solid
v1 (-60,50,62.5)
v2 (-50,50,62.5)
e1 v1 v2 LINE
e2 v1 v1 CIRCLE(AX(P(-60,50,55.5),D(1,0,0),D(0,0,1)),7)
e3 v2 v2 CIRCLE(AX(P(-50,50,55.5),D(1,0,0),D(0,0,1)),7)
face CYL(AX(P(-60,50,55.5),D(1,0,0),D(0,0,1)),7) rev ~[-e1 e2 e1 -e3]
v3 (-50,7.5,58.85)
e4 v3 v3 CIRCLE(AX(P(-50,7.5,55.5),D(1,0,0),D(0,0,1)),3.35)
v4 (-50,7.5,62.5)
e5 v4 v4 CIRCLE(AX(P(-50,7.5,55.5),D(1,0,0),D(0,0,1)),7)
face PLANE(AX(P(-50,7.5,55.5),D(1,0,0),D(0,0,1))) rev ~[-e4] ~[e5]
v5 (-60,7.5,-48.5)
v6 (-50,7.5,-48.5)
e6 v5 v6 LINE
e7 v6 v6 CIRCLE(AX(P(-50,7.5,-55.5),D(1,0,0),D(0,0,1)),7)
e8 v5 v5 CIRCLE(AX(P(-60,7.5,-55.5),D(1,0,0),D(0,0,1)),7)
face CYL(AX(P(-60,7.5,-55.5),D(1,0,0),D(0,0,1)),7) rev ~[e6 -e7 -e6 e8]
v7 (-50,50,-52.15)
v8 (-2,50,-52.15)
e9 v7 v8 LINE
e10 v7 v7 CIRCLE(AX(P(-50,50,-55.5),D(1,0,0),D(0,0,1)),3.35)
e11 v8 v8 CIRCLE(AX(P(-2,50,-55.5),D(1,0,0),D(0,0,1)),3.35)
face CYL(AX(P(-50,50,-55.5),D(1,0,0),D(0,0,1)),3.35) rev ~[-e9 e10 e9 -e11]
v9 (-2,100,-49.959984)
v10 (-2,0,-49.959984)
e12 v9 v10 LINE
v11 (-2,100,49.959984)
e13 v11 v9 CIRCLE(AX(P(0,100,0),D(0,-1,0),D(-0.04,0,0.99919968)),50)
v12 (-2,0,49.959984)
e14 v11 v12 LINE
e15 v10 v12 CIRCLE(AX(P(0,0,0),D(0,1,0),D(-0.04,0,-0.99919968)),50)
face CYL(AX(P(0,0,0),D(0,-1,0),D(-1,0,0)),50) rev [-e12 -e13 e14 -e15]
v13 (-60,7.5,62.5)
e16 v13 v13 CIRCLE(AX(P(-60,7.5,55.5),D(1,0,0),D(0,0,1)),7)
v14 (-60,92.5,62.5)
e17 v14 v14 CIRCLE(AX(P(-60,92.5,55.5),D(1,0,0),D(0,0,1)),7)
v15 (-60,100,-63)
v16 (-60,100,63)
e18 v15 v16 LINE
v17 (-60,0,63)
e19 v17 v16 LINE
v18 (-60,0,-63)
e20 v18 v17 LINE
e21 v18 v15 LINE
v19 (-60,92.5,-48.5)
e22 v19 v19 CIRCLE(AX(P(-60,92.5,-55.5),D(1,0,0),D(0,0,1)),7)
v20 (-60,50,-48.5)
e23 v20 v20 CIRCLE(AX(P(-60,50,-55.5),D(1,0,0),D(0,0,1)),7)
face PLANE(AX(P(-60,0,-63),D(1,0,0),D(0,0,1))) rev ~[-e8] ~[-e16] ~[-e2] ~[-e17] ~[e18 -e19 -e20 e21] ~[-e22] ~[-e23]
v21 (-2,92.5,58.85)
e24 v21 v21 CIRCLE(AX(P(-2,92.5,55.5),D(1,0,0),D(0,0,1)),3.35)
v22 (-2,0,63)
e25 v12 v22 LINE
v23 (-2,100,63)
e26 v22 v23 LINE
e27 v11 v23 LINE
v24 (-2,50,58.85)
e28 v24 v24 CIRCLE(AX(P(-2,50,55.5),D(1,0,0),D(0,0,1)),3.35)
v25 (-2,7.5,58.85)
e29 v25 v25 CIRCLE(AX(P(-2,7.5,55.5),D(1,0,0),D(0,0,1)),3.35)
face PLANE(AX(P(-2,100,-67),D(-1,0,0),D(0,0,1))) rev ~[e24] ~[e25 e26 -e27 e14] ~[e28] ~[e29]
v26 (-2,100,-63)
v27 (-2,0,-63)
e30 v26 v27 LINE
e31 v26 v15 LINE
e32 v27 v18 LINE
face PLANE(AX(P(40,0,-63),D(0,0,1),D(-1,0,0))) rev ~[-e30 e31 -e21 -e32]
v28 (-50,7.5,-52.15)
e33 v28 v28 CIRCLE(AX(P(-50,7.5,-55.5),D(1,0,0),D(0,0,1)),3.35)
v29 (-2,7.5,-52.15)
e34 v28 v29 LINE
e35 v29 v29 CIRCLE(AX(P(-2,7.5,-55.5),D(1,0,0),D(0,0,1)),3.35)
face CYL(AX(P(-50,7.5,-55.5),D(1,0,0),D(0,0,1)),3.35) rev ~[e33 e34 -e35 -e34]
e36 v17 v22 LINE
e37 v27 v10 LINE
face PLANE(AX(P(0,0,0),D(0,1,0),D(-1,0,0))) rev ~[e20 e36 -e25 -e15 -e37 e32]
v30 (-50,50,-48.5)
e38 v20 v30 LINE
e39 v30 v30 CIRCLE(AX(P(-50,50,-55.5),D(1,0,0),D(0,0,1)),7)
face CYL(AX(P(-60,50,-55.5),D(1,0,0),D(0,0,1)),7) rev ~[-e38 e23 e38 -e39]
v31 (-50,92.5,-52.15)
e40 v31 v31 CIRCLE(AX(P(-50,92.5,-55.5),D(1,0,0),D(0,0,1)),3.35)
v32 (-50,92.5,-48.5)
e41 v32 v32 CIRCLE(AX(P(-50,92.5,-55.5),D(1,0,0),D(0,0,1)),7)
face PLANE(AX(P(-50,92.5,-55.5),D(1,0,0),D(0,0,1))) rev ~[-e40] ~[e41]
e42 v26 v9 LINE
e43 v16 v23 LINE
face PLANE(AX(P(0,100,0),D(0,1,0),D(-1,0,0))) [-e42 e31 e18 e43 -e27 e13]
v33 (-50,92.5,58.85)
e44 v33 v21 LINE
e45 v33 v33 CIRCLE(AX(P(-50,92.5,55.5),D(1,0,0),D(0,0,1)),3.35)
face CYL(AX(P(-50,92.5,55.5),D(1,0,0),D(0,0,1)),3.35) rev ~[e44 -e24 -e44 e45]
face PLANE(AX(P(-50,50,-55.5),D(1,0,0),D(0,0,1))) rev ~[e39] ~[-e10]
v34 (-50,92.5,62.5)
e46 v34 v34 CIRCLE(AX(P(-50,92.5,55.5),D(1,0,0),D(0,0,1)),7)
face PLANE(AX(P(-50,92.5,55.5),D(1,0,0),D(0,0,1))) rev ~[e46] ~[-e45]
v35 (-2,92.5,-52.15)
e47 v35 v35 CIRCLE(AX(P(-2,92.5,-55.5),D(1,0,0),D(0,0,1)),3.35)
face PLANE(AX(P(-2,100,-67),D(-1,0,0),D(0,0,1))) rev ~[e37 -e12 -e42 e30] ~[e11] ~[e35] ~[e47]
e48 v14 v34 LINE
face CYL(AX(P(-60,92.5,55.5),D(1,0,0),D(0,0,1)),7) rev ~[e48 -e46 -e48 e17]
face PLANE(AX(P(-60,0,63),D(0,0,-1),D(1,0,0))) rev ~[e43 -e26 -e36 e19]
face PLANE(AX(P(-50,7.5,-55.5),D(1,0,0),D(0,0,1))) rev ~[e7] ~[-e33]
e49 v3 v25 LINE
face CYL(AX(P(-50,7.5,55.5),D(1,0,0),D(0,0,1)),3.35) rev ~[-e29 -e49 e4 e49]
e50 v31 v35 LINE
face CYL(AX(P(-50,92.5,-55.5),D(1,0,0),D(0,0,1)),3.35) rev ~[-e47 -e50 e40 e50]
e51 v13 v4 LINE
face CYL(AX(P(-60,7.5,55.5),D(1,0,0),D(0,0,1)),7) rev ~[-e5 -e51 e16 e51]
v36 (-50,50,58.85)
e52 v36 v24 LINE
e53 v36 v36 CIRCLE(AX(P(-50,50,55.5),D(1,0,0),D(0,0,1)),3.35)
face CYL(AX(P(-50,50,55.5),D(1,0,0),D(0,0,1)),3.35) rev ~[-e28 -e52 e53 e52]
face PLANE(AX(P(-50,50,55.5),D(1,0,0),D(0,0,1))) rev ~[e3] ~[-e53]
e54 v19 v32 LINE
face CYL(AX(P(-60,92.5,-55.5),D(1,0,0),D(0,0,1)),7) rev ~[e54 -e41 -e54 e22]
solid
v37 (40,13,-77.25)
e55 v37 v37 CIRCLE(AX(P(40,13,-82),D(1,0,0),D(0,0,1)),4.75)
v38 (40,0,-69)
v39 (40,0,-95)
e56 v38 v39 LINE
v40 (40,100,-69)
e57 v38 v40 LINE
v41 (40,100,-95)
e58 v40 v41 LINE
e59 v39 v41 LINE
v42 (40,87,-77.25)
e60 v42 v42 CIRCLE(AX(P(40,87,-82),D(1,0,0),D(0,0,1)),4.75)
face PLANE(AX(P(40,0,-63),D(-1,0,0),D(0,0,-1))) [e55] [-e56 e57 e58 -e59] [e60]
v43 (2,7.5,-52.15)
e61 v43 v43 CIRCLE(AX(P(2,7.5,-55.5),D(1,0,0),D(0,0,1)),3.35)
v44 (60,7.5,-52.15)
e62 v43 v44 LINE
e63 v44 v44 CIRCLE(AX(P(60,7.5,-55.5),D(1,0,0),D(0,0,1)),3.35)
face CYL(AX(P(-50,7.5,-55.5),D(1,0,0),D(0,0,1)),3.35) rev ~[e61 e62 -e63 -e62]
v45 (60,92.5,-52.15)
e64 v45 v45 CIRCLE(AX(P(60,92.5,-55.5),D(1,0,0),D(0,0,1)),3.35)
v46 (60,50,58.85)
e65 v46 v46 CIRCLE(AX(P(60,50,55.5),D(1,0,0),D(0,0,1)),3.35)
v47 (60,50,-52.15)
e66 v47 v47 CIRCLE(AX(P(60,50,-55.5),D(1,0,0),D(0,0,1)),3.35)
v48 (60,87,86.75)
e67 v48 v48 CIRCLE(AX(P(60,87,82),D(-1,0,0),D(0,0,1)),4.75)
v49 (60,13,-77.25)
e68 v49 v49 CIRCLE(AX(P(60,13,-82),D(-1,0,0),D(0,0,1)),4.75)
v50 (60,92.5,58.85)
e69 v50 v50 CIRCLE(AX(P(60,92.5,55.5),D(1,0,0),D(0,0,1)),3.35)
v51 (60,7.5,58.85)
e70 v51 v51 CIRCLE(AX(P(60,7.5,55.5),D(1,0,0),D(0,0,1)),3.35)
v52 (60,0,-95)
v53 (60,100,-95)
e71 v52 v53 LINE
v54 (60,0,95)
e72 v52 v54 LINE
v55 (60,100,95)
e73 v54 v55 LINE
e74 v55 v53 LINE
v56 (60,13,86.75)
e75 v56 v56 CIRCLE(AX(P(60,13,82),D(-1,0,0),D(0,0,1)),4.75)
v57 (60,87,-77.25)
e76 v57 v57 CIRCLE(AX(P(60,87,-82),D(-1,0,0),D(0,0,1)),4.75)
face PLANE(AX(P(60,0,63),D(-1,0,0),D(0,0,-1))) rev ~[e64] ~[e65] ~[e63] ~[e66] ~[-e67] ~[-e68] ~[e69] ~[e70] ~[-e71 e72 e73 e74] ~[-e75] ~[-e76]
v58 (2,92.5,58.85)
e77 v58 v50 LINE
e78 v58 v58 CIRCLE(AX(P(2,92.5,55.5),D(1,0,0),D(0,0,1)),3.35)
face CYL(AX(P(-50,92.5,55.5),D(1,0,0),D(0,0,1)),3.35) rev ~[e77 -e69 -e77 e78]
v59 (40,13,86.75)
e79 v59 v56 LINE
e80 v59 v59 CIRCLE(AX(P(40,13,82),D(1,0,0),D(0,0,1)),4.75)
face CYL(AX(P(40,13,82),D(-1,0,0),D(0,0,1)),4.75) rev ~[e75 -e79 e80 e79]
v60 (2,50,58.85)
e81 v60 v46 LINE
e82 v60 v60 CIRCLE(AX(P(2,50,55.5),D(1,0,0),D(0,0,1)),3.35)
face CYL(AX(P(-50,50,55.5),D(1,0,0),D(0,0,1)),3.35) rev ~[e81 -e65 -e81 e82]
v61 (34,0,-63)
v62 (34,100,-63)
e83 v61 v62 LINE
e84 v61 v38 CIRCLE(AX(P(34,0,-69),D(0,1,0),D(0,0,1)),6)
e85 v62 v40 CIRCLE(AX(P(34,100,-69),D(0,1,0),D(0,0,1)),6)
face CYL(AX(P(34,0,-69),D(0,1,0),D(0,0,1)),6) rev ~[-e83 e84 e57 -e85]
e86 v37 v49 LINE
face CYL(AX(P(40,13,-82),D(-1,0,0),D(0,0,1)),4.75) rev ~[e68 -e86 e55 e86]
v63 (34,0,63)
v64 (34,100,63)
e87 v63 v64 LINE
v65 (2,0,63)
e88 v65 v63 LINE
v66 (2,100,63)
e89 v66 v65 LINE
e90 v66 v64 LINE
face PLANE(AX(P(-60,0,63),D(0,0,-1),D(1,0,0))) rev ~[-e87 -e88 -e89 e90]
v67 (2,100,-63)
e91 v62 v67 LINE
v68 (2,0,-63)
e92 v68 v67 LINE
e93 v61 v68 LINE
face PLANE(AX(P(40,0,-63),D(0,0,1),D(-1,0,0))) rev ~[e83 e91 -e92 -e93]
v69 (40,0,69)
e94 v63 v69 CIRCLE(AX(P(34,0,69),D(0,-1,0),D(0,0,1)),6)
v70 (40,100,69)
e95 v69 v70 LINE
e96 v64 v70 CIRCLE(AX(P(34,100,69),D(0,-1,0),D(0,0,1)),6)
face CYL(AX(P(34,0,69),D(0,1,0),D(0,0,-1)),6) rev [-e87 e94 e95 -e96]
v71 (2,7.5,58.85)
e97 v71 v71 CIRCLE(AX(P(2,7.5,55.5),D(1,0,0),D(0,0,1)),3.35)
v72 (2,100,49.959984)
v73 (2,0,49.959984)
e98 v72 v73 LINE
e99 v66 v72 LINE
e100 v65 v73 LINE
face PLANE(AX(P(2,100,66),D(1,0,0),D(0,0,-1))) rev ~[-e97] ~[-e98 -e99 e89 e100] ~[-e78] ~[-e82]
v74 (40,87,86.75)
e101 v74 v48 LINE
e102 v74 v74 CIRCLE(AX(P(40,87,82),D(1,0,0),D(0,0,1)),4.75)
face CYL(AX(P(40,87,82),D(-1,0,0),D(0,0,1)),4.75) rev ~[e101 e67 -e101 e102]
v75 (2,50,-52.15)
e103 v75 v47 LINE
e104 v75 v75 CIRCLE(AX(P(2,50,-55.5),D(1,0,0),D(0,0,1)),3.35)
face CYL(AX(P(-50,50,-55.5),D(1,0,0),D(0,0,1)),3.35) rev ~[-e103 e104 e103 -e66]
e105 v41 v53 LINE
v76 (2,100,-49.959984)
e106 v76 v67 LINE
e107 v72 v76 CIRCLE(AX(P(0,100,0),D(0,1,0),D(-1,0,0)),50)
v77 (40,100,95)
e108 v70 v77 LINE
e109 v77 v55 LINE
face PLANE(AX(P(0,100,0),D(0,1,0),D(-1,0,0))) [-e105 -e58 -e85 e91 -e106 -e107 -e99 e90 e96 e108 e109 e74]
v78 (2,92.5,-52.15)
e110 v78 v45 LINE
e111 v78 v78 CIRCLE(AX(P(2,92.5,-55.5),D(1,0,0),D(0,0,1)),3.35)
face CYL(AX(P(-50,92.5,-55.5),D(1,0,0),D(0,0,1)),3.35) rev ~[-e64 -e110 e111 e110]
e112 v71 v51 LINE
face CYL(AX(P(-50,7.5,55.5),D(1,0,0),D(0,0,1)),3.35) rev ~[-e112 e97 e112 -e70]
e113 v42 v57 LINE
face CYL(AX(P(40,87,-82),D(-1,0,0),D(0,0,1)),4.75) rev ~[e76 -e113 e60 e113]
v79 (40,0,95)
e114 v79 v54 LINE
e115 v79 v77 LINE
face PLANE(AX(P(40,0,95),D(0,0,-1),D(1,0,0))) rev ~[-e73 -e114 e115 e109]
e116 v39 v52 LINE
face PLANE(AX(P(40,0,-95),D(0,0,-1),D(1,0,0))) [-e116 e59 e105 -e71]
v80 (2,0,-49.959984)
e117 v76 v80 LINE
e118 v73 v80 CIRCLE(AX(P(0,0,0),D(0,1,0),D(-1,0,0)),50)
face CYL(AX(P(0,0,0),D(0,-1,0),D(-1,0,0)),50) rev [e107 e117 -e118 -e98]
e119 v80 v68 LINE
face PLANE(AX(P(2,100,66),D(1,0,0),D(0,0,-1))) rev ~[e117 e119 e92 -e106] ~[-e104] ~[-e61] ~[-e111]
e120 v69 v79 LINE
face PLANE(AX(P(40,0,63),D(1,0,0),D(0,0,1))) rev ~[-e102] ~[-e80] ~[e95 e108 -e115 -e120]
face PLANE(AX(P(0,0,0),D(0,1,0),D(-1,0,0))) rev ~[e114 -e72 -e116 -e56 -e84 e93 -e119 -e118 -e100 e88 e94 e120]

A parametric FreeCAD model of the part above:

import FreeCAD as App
import Part
import Sketcher

V = App.Vector
Q = App.Units.Quantity


def edges_at(feature, points):
    """Names of the edges that pass closest to the given points."""
    edges = feature.Shape.Edges
    near = lambda p: min(range(len(edges)), key=lambda i: edges[i].distToShape(Part.Vertex(*p))[0])
    return sorted({f"Edge{near(p) + 1}" for p in points})


def add_polygon(sketch, points):
    """Adds a closed chain of lines whose ends are joined by coincident constraints."""
    first, n = sketch.GeometryCount, len(points)
    for a, b in zip(points, points[1:] + points[:1]):
        sketch.addGeometry(Part.LineSegment(App.Vector(*a, 0), App.Vector(*b, 0)), False)
    for i in range(n):
        sketch.addConstraint(Sketcher.Constraint("Coincident", first + i, 2, first + (i + 1) % n, 1))

doc = App.newDocument("Part")
body = doc.addObject("PartDesign::Body", "Body")
body.AllowCompound = True

sketch1 = body.newObject("Sketcher::SketchObject", "Sketch")
sketch1.AttachmentSupport = (doc.getObject("XZ_Plane"), [""])
sketch1.MapMode = "FlatFace"
add_polygon(sketch1, [(-60, -63), (-60, 63), (40, 63), (40, 95), (60, 95), (60, -95), (40, -95), (40, -63)])
sketch1.addGeometry(Part.Circle(V(0, 0, 0), V(0, 0, 1), 50), False)
sketch1.addConstraint([
    Sketcher.Constraint("Vertical", 0),
    Sketcher.Constraint("Horizontal", 1),
    Sketcher.Constraint("Vertical", 2),
    Sketcher.Constraint("Horizontal", 3),
    Sketcher.Constraint("Vertical", 4),
    Sketcher.Constraint("Horizontal", 5),
    Sketcher.Constraint("Vertical", 6),
    Sketcher.Constraint("Horizontal", 7),
    Sketcher.Constraint("Coincident", 8, 3, -1, 1),
    Sketcher.Constraint("Symmetric", 2, 2, 5, 2, -1),
    Sketcher.Constraint("Equal", 2, 6),
    Sketcher.Constraint("Diameter", 8, Q("100 mm")),
    Sketcher.Constraint("DistanceX", 1, 1, 1, 2, Q("100 mm")),
    Sketcher.Constraint("DistanceX", 3, 1, 3, 2, Q("20 mm")),
    Sketcher.Constraint("DistanceY", 0, 1, 0, 2, Q("126 mm")),
    Sketcher.Constraint("DistanceY", 2, 1, 2, 2, Q("32 mm")),
    Sketcher.Constraint("DistanceX", 0, 2, -1, 1, Q("60 mm")),
])
pad1 = body.newObject("PartDesign::Pad", "Pad")
pad1.Profile = sketch1
pad1.Length = 100
pad1.Reversed = True
doc.recompute()

fillet = body.newObject("PartDesign::Fillet", "Fillet")
fillet.Base = (pad1, edges_at(pad1, [(40, 50, 63), (40, 50, -63)]))
fillet.Radius = 6

sketch2 = body.newObject("Sketcher::SketchObject", "Sketch001")
sketch2.AttachmentSupport = (doc.getObject("YZ_Plane"), [""])
sketch2.MapMode = "FlatFace"
sketch2.AttachmentOffset = App.Placement(V(0, 0, 40), App.Rotation())
sketch2.addGeometry([
    Part.Circle(V(13, -82, 0), V(0, 0, 1), 4.8),
    Part.Circle(V(87, -82, 0), V(0, 0, 1), 4.8),
    Part.Circle(V(13, 82, 0), V(0, 0, 1), 4.8),
    Part.Circle(V(87, 82, 0), V(0, 0, 1), 4.8),
], False)
sketch2.addConstraint([
    Sketcher.Constraint("Equal", 0, 1),
    Sketcher.Constraint("Equal", 1, 2),
    Sketcher.Constraint("Equal", 2, 3),
    Sketcher.Constraint("Symmetric", 0, 3, 2, 3, -1),
    Sketcher.Constraint("Symmetric", 1, 3, 3, 3, -1),
    Sketcher.Constraint("Horizontal", 0, 3, 1, 3),
    Sketcher.Constraint("DistanceX", -1, 1, 0, 3, Q("13 mm")),
    Sketcher.Constraint("Diameter", 0, Q("9.5 mm")),
    Sketcher.Constraint("DistanceY", 0, 3, -1, 1, Q("82 mm")),
    Sketcher.Constraint("DistanceX", -1, 1, 1, 3, Q("87 mm")),
])
pocket1 = body.newObject("PartDesign::Pocket", "Pocket")
pocket1.Profile = sketch2
pocket1.Length = 25
pocket1.Reversed = True

sketch3 = body.newObject("Sketcher::SketchObject", "Sketch002")
sketch3.AttachmentSupport = (doc.getObject("YZ_Plane"), [""])
sketch3.MapMode = "FlatFace"
sketch3.AttachmentOffset = App.Placement(V(0, 0, -60), App.Rotation())
sketch3.addGeometry([
    Part.Circle(V(7.5, -55.5, 0), V(0, 0, 1), 3.4),
    Part.Circle(V(50, -55.5, 0), V(0, 0, 1), 3.4),
    Part.Circle(V(92.5, -55.5, 0), V(0, 0, 1), 3.4),
    Part.Circle(V(92.5, 55.5, 0), V(0, 0, 1), 3.4),
    Part.Circle(V(50, 55.5, 0), V(0, 0, 1), 3.4),
    Part.Circle(V(7.5, 55.5, 0), V(0, 0, 1), 3.4),
], False)
sketch3.addConstraint([
    Sketcher.Constraint("Equal", 0, 1),
    Sketcher.Constraint("Equal", 1, 2),
    Sketcher.Constraint("Equal", 2, 3),
    Sketcher.Constraint("Equal", 3, 4),
    Sketcher.Constraint("Equal", 4, 5),
    Sketcher.Constraint("Symmetric", 2, 3, 3, 3, -1),
    Sketcher.Constraint("Symmetric", 1, 3, 4, 3, -1),
    Sketcher.Constraint("Symmetric", 0, 3, 5, 3, -1),
    Sketcher.Constraint("Horizontal", 0, 3, 1, 3),
    Sketcher.Constraint("Horizontal", 1, 3, 2, 3),
    Sketcher.Constraint("Diameter", 0, Q("6.7 mm")),
    Sketcher.Constraint("DistanceX", -1, 1, 1, 3, Q("50 mm")),
    Sketcher.Constraint("DistanceX", 0, 3, 2, 3, Q("85 mm")),
    Sketcher.Constraint("DistanceY", 2, 3, 3, 3, Q("111 mm")),
    Sketcher.Constraint("DistanceX", -1, 1, 0, 3, Q("7.5 mm")),
])
doc.recompute()
hole = body.newObject("PartDesign::Hole", "Hole")
hole.Profile = sketch3
hole.ThreadType = "None"
hole.Diameter = 6.7
hole.DepthType = "ThroughAll"
hole.HoleCutType = "Counterbore"
hole.HoleCutDiameter = 14
hole.HoleCutDepth = 10
hole.Reversed = True

sketch4 = body.newObject("Sketcher::SketchObject", "Sketch003")
sketch4.AttachmentSupport = (doc.getObject("XZ_Plane"), [""])
sketch4.MapMode = "FlatFace"
sketch4.AttachmentOffset = App.Placement(V(0, 0, -100), App.Rotation())
add_polygon(sketch4, [(-2, -67), (-2, 66), (2, 66), (2, -67)])
sketch4.addConstraint([
    Sketcher.Constraint("Vertical", 0),
    Sketcher.Constraint("Horizontal", 1),
    Sketcher.Constraint("Vertical", 2),
    Sketcher.Constraint("Horizontal", 3),
    Sketcher.Constraint("DistanceX", 1, 1, 1, 2, Q("4 mm")),
    Sketcher.Constraint("DistanceY", 0, 1, 0, 2, Q("133 mm")),
    Sketcher.Constraint("DistanceX", 0, 2, -1, 1, Q("2 mm")),
    Sketcher.Constraint("DistanceY", -1, 1, 0, 2, Q("66 mm")),
])
pocket2 = body.newObject("PartDesign::Pocket", "Pocket001")
pocket2.Profile = sketch4
pocket2.Length = 200
pocket2.Reversed = True

doc.recompute()
